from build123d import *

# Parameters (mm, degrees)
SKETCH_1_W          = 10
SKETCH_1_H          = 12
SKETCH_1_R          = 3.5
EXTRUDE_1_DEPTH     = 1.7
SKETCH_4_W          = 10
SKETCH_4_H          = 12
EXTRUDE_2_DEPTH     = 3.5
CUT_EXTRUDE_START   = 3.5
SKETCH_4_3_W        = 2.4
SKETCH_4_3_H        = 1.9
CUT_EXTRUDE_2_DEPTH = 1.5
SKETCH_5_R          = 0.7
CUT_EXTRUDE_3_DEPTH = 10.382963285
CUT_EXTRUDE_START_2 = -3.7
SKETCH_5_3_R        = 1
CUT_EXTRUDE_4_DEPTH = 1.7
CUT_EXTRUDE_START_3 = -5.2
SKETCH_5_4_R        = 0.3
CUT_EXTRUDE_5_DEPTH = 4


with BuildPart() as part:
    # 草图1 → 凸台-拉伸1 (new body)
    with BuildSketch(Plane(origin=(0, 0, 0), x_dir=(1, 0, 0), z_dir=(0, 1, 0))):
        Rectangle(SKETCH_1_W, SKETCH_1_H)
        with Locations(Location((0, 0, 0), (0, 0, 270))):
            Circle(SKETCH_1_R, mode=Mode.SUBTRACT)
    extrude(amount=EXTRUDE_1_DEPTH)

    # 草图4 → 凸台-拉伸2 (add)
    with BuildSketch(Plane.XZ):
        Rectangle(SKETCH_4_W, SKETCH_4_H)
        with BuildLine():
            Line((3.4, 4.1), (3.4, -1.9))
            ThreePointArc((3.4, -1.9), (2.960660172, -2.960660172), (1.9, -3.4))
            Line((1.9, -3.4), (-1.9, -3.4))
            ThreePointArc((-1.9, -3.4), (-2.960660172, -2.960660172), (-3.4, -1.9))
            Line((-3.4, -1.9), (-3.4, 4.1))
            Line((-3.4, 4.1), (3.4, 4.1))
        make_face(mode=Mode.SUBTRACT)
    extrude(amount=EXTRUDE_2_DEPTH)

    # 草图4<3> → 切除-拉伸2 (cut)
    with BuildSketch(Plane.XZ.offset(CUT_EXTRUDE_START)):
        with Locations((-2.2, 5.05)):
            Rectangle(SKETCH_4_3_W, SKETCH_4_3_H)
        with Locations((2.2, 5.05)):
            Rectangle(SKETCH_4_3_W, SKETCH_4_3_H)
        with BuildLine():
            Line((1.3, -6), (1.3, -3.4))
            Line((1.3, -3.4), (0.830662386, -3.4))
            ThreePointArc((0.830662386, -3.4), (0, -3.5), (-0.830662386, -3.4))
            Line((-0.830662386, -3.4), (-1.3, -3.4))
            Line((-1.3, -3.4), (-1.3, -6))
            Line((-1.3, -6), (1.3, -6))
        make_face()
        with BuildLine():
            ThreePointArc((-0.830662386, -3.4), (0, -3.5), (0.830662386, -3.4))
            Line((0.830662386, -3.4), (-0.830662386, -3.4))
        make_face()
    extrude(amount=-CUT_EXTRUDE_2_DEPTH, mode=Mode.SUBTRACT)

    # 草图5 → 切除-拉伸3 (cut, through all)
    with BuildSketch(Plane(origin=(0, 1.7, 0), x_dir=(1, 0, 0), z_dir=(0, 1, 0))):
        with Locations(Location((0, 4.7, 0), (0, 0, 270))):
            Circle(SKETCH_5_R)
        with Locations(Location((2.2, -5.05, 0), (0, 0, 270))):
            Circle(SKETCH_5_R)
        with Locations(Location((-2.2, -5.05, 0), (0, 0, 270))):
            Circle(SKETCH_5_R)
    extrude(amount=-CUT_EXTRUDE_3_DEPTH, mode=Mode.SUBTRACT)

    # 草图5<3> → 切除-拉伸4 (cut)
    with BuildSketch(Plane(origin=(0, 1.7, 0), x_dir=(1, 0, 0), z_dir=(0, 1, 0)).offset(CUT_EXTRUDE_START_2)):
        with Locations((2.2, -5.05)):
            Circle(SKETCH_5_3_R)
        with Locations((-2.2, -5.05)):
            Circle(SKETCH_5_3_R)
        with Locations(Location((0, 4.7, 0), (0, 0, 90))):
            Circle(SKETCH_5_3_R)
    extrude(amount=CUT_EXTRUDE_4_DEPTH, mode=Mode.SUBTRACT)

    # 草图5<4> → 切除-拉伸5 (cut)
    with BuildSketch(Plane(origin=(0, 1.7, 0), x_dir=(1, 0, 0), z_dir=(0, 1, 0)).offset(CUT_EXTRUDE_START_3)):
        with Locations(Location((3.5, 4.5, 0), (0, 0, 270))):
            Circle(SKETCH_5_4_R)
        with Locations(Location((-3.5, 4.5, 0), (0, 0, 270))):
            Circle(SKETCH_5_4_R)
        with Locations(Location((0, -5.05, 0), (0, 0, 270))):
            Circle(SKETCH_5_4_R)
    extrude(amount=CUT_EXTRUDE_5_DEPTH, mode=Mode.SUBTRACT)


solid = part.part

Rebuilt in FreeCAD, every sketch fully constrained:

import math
import FreeCAD as App
import Part
import Sketcher
from FreeCAD import Vector

doc = App.newDocument("Part")
body = doc.addObject("PartDesign::Body", "Body")

sketch1 = body.newObject("Sketcher::SketchObject", "Sketch")
sketch1.AttachmentSupport = (doc.getObject("XZ_Plane"), [""])
sketch1.MapMode = "FlatFace"
sketch1.addGeometry([
    Part.LineSegment(Vector(-5, -6, 0), Vector(-5, 6, 0)),
    Part.LineSegment(Vector(-5, 6, 0), Vector(5, 6, 0)),
    Part.LineSegment(Vector(5, 6, 0), Vector(5, -6, 0)),
    Part.LineSegment(Vector(5, -6, 0), Vector(-5, -6, 0)),
    Part.Circle(Vector(0, 0, 0), Vector(0, 0, 1), 3.5),
], False)
sketch1.addConstraint([
    Sketcher.Constraint("Coincident", 0, 2, 1, 1),
    Sketcher.Constraint("Coincident", 1, 2, 2, 1),
    Sketcher.Constraint("Coincident", 2, 2, 3, 1),
    Sketcher.Constraint("Coincident", 3, 2, 0, 1),
    Sketcher.Constraint("Vertical", 0),
    Sketcher.Constraint("Horizontal", 1),
    Sketcher.Constraint("Vertical", 2),
    Sketcher.Constraint("Horizontal", 3),
    Sketcher.Constraint("Coincident", 4, 3, -1, 1),
    Sketcher.Constraint("Symmetric", 0, 2, 2, 2, -1, 1),
    Sketcher.Constraint("Diameter", 4, 7.0),
    Sketcher.Constraint("DistanceX", 1, 1, 1, 2, 10.0),
    Sketcher.Constraint("DistanceY", 0, 1, 0, 2, 12.0),
])
pad1 = body.newObject("PartDesign::Pad", "Pad")
pad1.Profile = sketch1
pad1.Length = 1.7
pad1.Reversed = True

sketch2 = body.newObject("Sketcher::SketchObject", "Sketch001")
sketch2.AttachmentSupport = (doc.getObject("XZ_Plane"), [""])
sketch2.MapMode = "FlatFace"
sketch2.addGeometry([
    Part.LineSegment(Vector(-5, 6, 0), Vector(-5, -6, 0)),
    Part.LineSegment(Vector(-5, -6, 0), Vector(5, -6, 0)),
    Part.LineSegment(Vector(5, -6, 0), Vector(5, 6, 0)),
    Part.LineSegment(Vector(5, 6, 0), Vector(-5, 6, 0)),
    Part.LineSegment(Vector(-3.4, 4.1, 0), Vector(3.4, 4.1, 0)),
    Part.LineSegment(Vector(3.4, 4.1, 0), Vector(3.4, -1.9, 0)),
    Part.ArcOfCircle(Part.Circle(Vector(1.9, -1.9, 0), Vector(0, 0, 1), 1.5), math.radians(-90), math.radians(0)),
    Part.LineSegment(Vector(1.9, -3.4, 0), Vector(-1.9, -3.4, 0)),
    Part.ArcOfCircle(Part.Circle(Vector(-1.9, -1.9, 0), Vector(0, 0, 1), 1.5), math.radians(180), math.radians(270)),
    Part.LineSegment(Vector(-3.4, -1.9, 0), Vector(-3.4, 4.1, 0)),
], False)
sketch2.addConstraint([
    Sketcher.Constraint("Coincident", 0, 2, 1, 1),
    Sketcher.Constraint("Coincident", 1, 2, 2, 1),
    Sketcher.Constraint("Coincident", 2, 2, 3, 1),
    Sketcher.Constraint("Coincident", 3, 2, 0, 1),
    Sketcher.Constraint("Coincident", 4, 2, 5, 1),
    Sketcher.Constraint("Tangent", 5, 2, 6, 2),
    Sketcher.Constraint("Tangent", 6, 1, 7, 1),
    Sketcher.Constraint("Tangent", 7, 2, 8, 2),
    Sketcher.Constraint("Tangent", 8, 1, 9, 1),
    Sketcher.Constraint("Coincident", 9, 2, 4, 1),
    Sketcher.Constraint("Vertical", 0),
    Sketcher.Constraint("Horizontal", 1),
    Sketcher.Constraint("Vertical", 2),
    Sketcher.Constraint("Horizontal", 3),
    Sketcher.Constraint("Horizontal", 4),
    Sketcher.Constraint("Vertical", 5),
    Sketcher.Constraint("Horizontal", 7),
    Sketcher.Constraint("Vertical", 9),
    Sketcher.Constraint("Equal", 6, 8),
    Sketcher.Constraint("Symmetric", 0, 2, 2, 2, -1, 1),
    Sketcher.Constraint("Radius", 6, 1.5),
    Sketcher.Constraint("DistanceX", 1, 1, 1, 2, 10.0),
    Sketcher.Constraint("DistanceY", 0, 2, 0, 1, 12.0),
    Sketcher.Constraint("DistanceY", 5, 2, 5, 1, 6.0),
    Sketcher.Constraint("DistanceX", 4, 1, 4, 2, 6.8),
    Sketcher.Constraint("DistanceX", -1, 1, 6, 3, 1.9),
    Sketcher.Constraint("DistanceY", 6, 3, -1, 1, 1.9),
])
pad2 = body.newObject("PartDesign::Pad", "Pad001")
pad2.Profile = sketch2
pad2.Length = 3.5

sketch3 = body.newObject("Sketcher::SketchObject", "Sketch002")
sketch3.AttachmentSupport = (doc.getObject("XZ_Plane"), [""])
sketch3.MapMode = "FlatFace"
sketch3.AttachmentOffset = App.Placement(Vector(0, 0, 3.5), App.Rotation())
sketch3.addGeometry([
    Part.LineSegment(Vector(-3.4, 6, 0), Vector(-3.4, 4.1, 0)),
    Part.LineSegment(Vector(-3.4, 4.1, 0), Vector(-1, 4.1, 0)),
    Part.LineSegment(Vector(-1, 4.1, 0), Vector(-1, 6, 0)),
    Part.LineSegment(Vector(-1, 6, 0), Vector(-3.4, 6, 0)),
    Part.LineSegment(Vector(1, 6, 0), Vector(1, 4.1, 0)),
    Part.LineSegment(Vector(1, 4.1, 0), Vector(3.4, 4.1, 0)),
    Part.LineSegment(Vector(3.4, 4.1, 0), Vector(3.4, 6, 0)),
    Part.LineSegment(Vector(3.4, 6, 0), Vector(1, 6, 0)),
    Part.LineSegment(Vector(1.3, -6, 0), Vector(1.3, -3.4, 0)),
    Part.LineSegment(Vector(1.3, -3.4, 0), Vector(-1.3, -3.4, 0)),
    Part.LineSegment(Vector(-1.3, -3.4, 0), Vector(-1.3, -6, 0)),
    Part.LineSegment(Vector(-1.3, -6, 0), Vector(1.3, -6, 0)),
], False)
sketch3.addConstraint([
    Sketcher.Constraint("Coincident", 0, 2, 1, 1),
    Sketcher.Constraint("Coincident", 1, 2, 2, 1),
    Sketcher.Constraint("Coincident", 2, 2, 3, 1),
    Sketcher.Constraint("Coincident", 3, 2, 0, 1),
    Sketcher.Constraint("Coincident", 4, 2, 5, 1),
    Sketcher.Constraint("Coincident", 5, 2, 6, 1),
    Sketcher.Constraint("Coincident", 6, 2, 7, 1),
    Sketcher.Constraint("Coincident", 7, 2, 4, 1),
    Sketcher.Constraint("Coincident", 8, 2, 9, 1),
    Sketcher.Constraint("Coincident", 9, 2, 10, 1),
    Sketcher.Constraint("Coincident", 10, 2, 11, 1),
    Sketcher.Constraint("Coincident", 11, 2, 8, 1),
    Sketcher.Constraint("Vertical", 0),
    Sketcher.Constraint("Horizontal", 1),
    Sketcher.Constraint("Vertical", 2),
    Sketcher.Constraint("Horizontal", 3),
    Sketcher.Constraint("Vertical", 4),
    Sketcher.Constraint("Horizontal", 5),
    Sketcher.Constraint("Vertical", 6),
    Sketcher.Constraint("Horizontal", 7),
    Sketcher.Constraint("Vertical", 8),
    Sketcher.Constraint("Horizontal", 9),
    Sketcher.Constraint("Vertical", 10),
    Sketcher.Constraint("Horizontal", 11),
    Sketcher.Constraint("Symmetric", 1, 2, 4, 2, -2),
    Sketcher.Constraint("Symmetric", 3, 2, 6, 2, -2),
    Sketcher.Constraint("Equal", 11, 8),
    Sketcher.Constraint("DistanceX", 1, 1, 1, 2, 2.4),
    Sketcher.Constraint("DistanceX", 9, 2, 9, 1, 2.6),
    Sketcher.Constraint("DistanceY", 0, 2, 0, 1, 1.9),
    Sketcher.Constraint("DistanceX", 1, 2, -1, 1, 1.0),
    Sketcher.Constraint("DistanceY", -1, 1, 2, 2, 6.0),
    Sketcher.Constraint("DistanceY", 10, 2, -1, 1, 6.0),
    Sketcher.Constraint("DistanceX", -1, 1, 8, 2, 1.3),
])
pocket1 = body.newObject("PartDesign::Pocket", "Pocket")
pocket1.Profile = sketch3
pocket1.Length = 1.5

sketch4 = body.newObject("Sketcher::SketchObject", "Sketch003")
sketch4.AttachmentSupport = (doc.getObject("XZ_Plane"), [""])
sketch4.MapMode = "FlatFace"
sketch4.AttachmentOffset = App.Placement(Vector(0, 0, -1.7), App.Rotation())
sketch4.addGeometry([
    Part.Circle(Vector(0, -4.7, 0), Vector(0, 0, 1), 0.7),
    Part.Circle(Vector(2.2, 5, 0), Vector(0, 0, 1), 0.7),
    Part.Circle(Vector(-2.2, 5, 0), Vector(0, 0, 1), 0.7),
], False)
sketch4.addConstraint([
    Sketcher.Constraint("Equal", 0, 1),
    Sketcher.Constraint("Equal", 1, 2),
    Sketcher.Constraint("Symmetric", 1, 3, 2, 3, -2),
    Sketcher.Constraint("PointOnObject", 0, 3, -2),
    Sketcher.Constraint("Diameter", 0, 1.4),
    Sketcher.Constraint("DistanceY", 0, 3, -1, 1, 4.7),
    Sketcher.Constraint("DistanceX", -1, 1, 1, 3, 2.2),
    Sketcher.Constraint("DistanceY", -1, 1, 1, 3, 5.05),
])
pocket2 = body.newObject("PartDesign::Pocket", "Pocket001")
pocket2.Profile = sketch4
pocket2.Type = "ThroughAll"
pocket2.Reversed = True

sketch5 = body.newObject("Sketcher::SketchObject", "Sketch004")
sketch5.AttachmentSupport = (doc.getObject("XZ_Plane"), [""])
sketch5.MapMode = "FlatFace"
sketch5.AttachmentOffset = App.Placement(Vector(0, 0, 2), App.Rotation())
sketch5.addGeometry([
    Part.Circle(Vector(2.2, 5, 0), Vector(0, 0, 1), 1),
    Part.Circle(Vector(-2.2, 5, 0), Vector(0, 0, 1), 1),
    Part.Circle(Vector(0, -4.7, 0), Vector(0, 0, 1), 1),
], False)
sketch5.addConstraint([
    Sketcher.Constraint("Equal", 0, 1),
    Sketcher.Constraint("Equal", 1, 2),
    Sketcher.Constraint("Symmetric", 0, 3, 1, 3, -2),
    Sketcher.Constraint("PointOnObject", 2, 3, -2),
    Sketcher.Constraint("Diameter", 0, 2.0),
    Sketcher.Constraint("DistanceX", -1, 1, 0, 3, 2.2),
    Sketcher.Constraint("DistanceY", 2, 3, -1, 1, 4.7),
    Sketcher.Constraint("DistanceY", -1, 1, 0, 3, 5.05),
])
pocket3 = body.newObject("PartDesign::Pocket", "Pocket002")
pocket3.Profile = sketch5
pocket3.Length = 1.7

sketch6 = body.newObject("Sketcher::SketchObject", "Sketch005")
sketch6.AttachmentSupport = (doc.getObject("XZ_Plane"), [""])
sketch6.MapMode = "FlatFace"
sketch6.AttachmentOffset = App.Placement(Vector(0, 0, 3.5), App.Rotation())
sketch6.addGeometry([
    Part.Circle(Vector(3.5, -4.5, 0), Vector(0, 0, 1), 0.3),
    Part.Circle(Vector(-3.5, -4.5, 0), Vector(0, 0, 1), 0.3),
    Part.Circle(Vector(0, 5.05, 0), Vector(0, 0, 1), 0.3),
], False)
sketch6.addConstraint([
    Sketcher.Constraint("Equal", 0, 1),
    Sketcher.Constraint("Equal", 1, 2),
    Sketcher.Constraint("Symmetric", 0, 3, 1, 3, -2),
    Sketcher.Constraint("PointOnObject", 2, 3, -2),
    Sketcher.Constraint("Diameter", 0, 0.6),
    Sketcher.Constraint("DistanceX", 1, 3, 0, 3, 7.0),
    Sketcher.Constraint("DistanceY", 0, 3, -1, 1, 4.5),
    Sketcher.Constraint("DistanceY", -1, 1, 2, 3, 5.05),
])
pocket4 = body.newObject("PartDesign::Pocket", "Pocket003")
pocket4.Profile = sketch6
pocket4.Length = 4

doc.recompute()
